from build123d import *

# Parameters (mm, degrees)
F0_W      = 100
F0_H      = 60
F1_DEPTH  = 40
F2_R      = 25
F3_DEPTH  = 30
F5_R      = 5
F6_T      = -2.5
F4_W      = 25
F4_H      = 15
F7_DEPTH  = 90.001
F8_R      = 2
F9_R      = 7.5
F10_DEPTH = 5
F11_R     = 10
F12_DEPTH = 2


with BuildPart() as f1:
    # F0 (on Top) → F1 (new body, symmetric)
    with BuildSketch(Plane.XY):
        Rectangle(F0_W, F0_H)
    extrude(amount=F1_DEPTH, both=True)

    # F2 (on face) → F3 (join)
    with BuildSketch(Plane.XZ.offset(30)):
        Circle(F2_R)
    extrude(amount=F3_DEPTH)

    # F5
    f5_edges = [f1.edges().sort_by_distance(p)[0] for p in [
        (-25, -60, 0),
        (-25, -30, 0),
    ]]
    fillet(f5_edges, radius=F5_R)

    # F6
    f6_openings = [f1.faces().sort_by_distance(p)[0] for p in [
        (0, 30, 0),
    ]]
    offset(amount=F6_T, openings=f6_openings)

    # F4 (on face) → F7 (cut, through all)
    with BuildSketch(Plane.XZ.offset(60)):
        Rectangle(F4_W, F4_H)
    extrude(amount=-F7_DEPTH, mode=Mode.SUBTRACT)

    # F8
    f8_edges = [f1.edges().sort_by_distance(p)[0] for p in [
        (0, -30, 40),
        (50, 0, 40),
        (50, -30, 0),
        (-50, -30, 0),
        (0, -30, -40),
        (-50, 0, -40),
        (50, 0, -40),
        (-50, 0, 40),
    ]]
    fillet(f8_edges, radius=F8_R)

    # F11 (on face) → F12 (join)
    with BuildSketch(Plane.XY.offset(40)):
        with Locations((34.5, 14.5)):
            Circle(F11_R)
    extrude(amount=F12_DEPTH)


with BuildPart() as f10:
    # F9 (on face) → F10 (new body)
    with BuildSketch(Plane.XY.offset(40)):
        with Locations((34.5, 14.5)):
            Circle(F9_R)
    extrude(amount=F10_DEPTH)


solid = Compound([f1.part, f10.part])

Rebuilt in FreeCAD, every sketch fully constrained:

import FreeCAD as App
import Part
import Sketcher


def edges_at(feature, points):
    """Names of the edges that pass closest to the given points."""
    edges = feature.Shape.Edges
    near = lambda p: min(range(len(edges)), key=lambda i: edges[i].distToShape(Part.Vertex(*p))[0])
    return sorted({f"Edge{near(p) + 1}" for p in points})


def faces_at(feature, points):
    """Names of the faces that lie closest to the given points."""
    faces = feature.Shape.Faces
    near = lambda p: min(range(len(faces)), key=lambda i: faces[i].distToShape(Part.Vertex(*p))[0])
    return sorted({f"Face{near(p) + 1}" for p in points})

doc = App.newDocument("Part")
body = doc.addObject("PartDesign::Body", "Body")

sketch1 = body.newObject("Sketcher::SketchObject", "Sketch")
sketch1.AttachmentSupport = (doc.getObject("XY_Plane"), [""])
sketch1.MapMode = "FlatFace"
sketch1.addGeometry([
    Part.LineSegment(App.Vector(-50, 30, 0), App.Vector(-50, -30, 0)),
    Part.LineSegment(App.Vector(-50, -30, 0), App.Vector(50, -30, 0)),
    Part.LineSegment(App.Vector(50, -30, 0), App.Vector(50, 30, 0)),
    Part.LineSegment(App.Vector(50, 30, 0), App.Vector(-50, 30, 0)),
], False)
sketch1.addConstraint([
    Sketcher.Constraint("Coincident", 0, 2, 1, 1),
    Sketcher.Constraint("Coincident", 1, 2, 2, 1),
    Sketcher.Constraint("Coincident", 2, 2, 3, 1),
    Sketcher.Constraint("Coincident", 3, 2, 0, 1),
    Sketcher.Constraint("Vertical", 0),
    Sketcher.Constraint("Horizontal", 1),
    Sketcher.Constraint("Vertical", 2),
    Sketcher.Constraint("Horizontal", 3),
    Sketcher.Constraint("Symmetric", 0, 2, 2, 2, -1, 1),
    Sketcher.Constraint("DistanceX", 1, 1, 1, 2, 100.0),
    Sketcher.Constraint("DistanceY", 0, 2, 0, 1, 60.0),
])
pad1 = body.newObject("PartDesign::Pad", "Pad")
pad1.Profile = sketch1
pad1.Length = 80
pad1.Midplane = True

sketch2 = body.newObject("Sketcher::SketchObject", "Sketch001")
sketch2.AttachmentSupport = (doc.getObject("XZ_Plane"), [""])
sketch2.MapMode = "FlatFace"
sketch2.AttachmentOffset = App.Placement(App.Vector(0, 0, 30), App.Rotation())
sketch2.addGeometry(Part.Circle(App.Vector(0, 0, 0), App.Vector(0, 0, 1), 25), False)
sketch2.addConstraint([
    Sketcher.Constraint("Coincident", 0, 3, -1, 1),
    Sketcher.Constraint("Diameter", 0, 50.0),
])
pad2 = body.newObject("PartDesign::Pad", "Pad001")
pad2.Profile = sketch2
pad2.Length = 30
doc.recompute()

fillet = body.newObject("PartDesign::Fillet", "Fillet")
fillet.Base = (pad2, edges_at(pad2, [(-25, -60, 0), (-25, -30, 0)]))
fillet.Radius = 5
doc.recompute()

thickness = body.newObject("PartDesign::Thickness", "Thickness")
thickness.Base = (fillet, faces_at(fillet, [(0, 30, 0)]))
thickness.Value = 2.5
thickness.Reversed = True
thickness.Join = "Arc"

sketch3 = body.newObject("Sketcher::SketchObject", "Sketch002")
sketch3.AttachmentSupport = (doc.getObject("XZ_Plane"), [""])
sketch3.MapMode = "FlatFace"
sketch3.AttachmentOffset = App.Placement(App.Vector(0, 0, 60), App.Rotation())
sketch3.addGeometry([
    Part.LineSegment(App.Vector(-12, 8, 0), App.Vector(-12, -8, 0)),
    Part.LineSegment(App.Vector(-12, -8, 0), App.Vector(12, -8, 0)),
    Part.LineSegment(App.Vector(12, -8, 0), App.Vector(12, 8, 0)),
    Part.LineSegment(App.Vector(12, 8, 0), App.Vector(-12, 8, 0)),
], False)
sketch3.addConstraint([
    Sketcher.Constraint("Coincident", 0, 2, 1, 1),
    Sketcher.Constraint("Coincident", 1, 2, 2, 1),
    Sketcher.Constraint("Coincident", 2, 2, 3, 1),
    Sketcher.Constraint("Coincident", 3, 2, 0, 1),
    Sketcher.Constraint("Vertical", 0),
    Sketcher.Constraint("Horizontal", 1),
    Sketcher.Constraint("Vertical", 2),
    Sketcher.Constraint("Horizontal", 3),
    Sketcher.Constraint("Symmetric", 0, 2, 2, 2, -1, 1),
    Sketcher.Constraint("DistanceX", 1, 1, 1, 2, 25.0),
    Sketcher.Constraint("DistanceY", 0, 2, 0, 1, 15.0),
])
pocket1 = body.newObject("PartDesign::Pocket", "Pocket")
pocket1.Profile = sketch3
pocket1.Type = "ThroughAll"
doc.recompute()

fillet2 = body.newObject("PartDesign::Fillet", "Fillet001")
fillet2.Base = (pocket1, edges_at(pocket1, [
    (0, -30, 40),
    (50, 0, 40),
    (50, -30, 0),
    (-50, -30, 0),
    (0, -30, -40),
    (-50, 0, -40),
    (50, 0, -40),
    (-50, 0, 40),
]))
fillet2.Radius = 2

sketch4 = body.newObject("Sketcher::SketchObject", "Sketch003")
sketch4.AttachmentSupport = (doc.getObject("XY_Plane"), [""])
sketch4.MapMode = "FlatFace"
sketch4.AttachmentOffset = App.Placement(App.Vector(0, 0, 40), App.Rotation())
sketch4.addGeometry(Part.Circle(App.Vector(34, 14, 0), App.Vector(0, 0, 1), 10), False)
sketch4.addConstraint([
    Sketcher.Constraint("Diameter", 0, 20.0),
    Sketcher.Constraint("DistanceX", -1, 1, 0, 3, 34.5),
    Sketcher.Constraint("DistanceY", -1, 1, 0, 3, 14.5),
])
pad3 = body.newObject("PartDesign::Pad", "Pad002")
pad3.Profile = sketch4
pad3.Length = 2
body2 = doc.addObject("PartDesign::Body", "Body001")

sketch5 = body2.newObject("Sketcher::SketchObject", "Sketch004")
sketch5.AttachmentSupport = (doc.getObject("XY_Plane001"), [""])
sketch5.MapMode = "FlatFace"
sketch5.AttachmentOffset = App.Placement(App.Vector(0, 0, 40), App.Rotation())
sketch5.addGeometry(Part.Circle(App.Vector(34, 14, 0), App.Vector(0, 0, 1), 8), False)
sketch5.addConstraint([
    Sketcher.Constraint("Diameter", 0, 15.0),
    Sketcher.Constraint("DistanceX", -1, 1, 0, 3, 34.5),
    Sketcher.Constraint("DistanceY", -1, 1, 0, 3, 14.5),
])
pad4 = body2.newObject("PartDesign::Pad", "Pad003")
pad4.Profile = sketch5
pad4.Length = 5

doc.recompute()
